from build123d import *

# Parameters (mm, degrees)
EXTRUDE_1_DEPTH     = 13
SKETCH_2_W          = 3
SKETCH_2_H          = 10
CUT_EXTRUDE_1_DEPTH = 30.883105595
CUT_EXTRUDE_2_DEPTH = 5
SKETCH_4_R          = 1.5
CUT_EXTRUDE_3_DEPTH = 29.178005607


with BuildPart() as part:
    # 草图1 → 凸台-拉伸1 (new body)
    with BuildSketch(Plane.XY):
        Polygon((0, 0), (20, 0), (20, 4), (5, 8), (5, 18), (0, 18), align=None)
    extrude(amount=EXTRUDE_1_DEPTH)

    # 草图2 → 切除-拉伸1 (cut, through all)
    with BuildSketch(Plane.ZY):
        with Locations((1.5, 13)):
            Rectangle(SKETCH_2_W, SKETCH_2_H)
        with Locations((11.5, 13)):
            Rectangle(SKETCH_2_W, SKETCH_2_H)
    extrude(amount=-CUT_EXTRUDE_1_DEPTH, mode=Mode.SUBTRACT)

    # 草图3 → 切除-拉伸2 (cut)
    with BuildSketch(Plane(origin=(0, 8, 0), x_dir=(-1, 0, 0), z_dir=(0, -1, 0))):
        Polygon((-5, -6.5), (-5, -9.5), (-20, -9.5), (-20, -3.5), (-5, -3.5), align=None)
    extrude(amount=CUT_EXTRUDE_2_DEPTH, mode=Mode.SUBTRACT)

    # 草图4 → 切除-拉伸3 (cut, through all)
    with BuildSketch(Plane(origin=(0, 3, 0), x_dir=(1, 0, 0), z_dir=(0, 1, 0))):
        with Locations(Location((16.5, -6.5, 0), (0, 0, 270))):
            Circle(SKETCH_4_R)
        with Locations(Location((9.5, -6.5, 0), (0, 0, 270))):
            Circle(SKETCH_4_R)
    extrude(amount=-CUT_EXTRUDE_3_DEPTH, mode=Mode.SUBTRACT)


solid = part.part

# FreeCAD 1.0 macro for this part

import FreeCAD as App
import Part
import Sketcher
from FreeCAD import Vector

doc = App.newDocument("Part")
params = doc.addObject("Spreadsheet::Sheet", "Params")
for row, (alias, value) in enumerate([
    ("sketch1_width", "20 mm"),
    ("sketch1_width2", "5 mm"),
    ("sketch1_height", "4 mm"),
    ("sketch1_height2", "10 mm"),
    ("sketch1_height3", "18 mm"),
    ("pad1_length", "13 mm"),
    ("sketch2_width", "10 mm"),
    ("sketch2_height", "3 mm"),
    ("sketch3_width", "15 mm"),
    ("sketch3_height", "6 mm"),
    ("pocket2_length", "5 mm"),
    ("sketch4_diameter", "3 mm"),
], start=1):
    params.set(f"A{row}", alias)
    params.set(f"B{row}", "=" + value)
    params.setAlias(f"B{row}", alias)

body = doc.addObject("PartDesign::Body", "Body")

sketch1 = body.newObject("Sketcher::SketchObject", "Sketch")
sketch1.AttachmentSupport = (doc.getObject("XY_Plane"), [""])
sketch1.MapMode = "FlatFace"
sketch1.addGeometry(Part.LineSegment(Vector(0, 0, 0), Vector(20, 0, 0)), False)
sketch1.addGeometry(Part.LineSegment(Vector(20, 0, 0), Vector(20, 4, 0)), False)
sketch1.addGeometry(Part.LineSegment(Vector(20, 4, 0), Vector(5, 8, 0)), False)
sketch1.addGeometry(Part.LineSegment(Vector(5, 8, 0), Vector(5, 18, 0)), False)
sketch1.addGeometry(Part.LineSegment(Vector(5, 18, 0), Vector(0, 18, 0)), False)
sketch1.addGeometry(Part.LineSegment(Vector(0, 18, 0), Vector(0, 0, 0)), False)
sketch1.addConstraint(Sketcher.Constraint("Coincident", 0, 2, 1, 1))
sketch1.addConstraint(Sketcher.Constraint("Coincident", 1, 2, 2, 1))
sketch1.addConstraint(Sketcher.Constraint("Coincident", 2, 2, 3, 1))
sketch1.addConstraint(Sketcher.Constraint("Coincident", 3, 2, 4, 1))
sketch1.addConstraint(Sketcher.Constraint("Coincident", 4, 2, 5, 1))
sketch1.addConstraint(Sketcher.Constraint("Coincident", 5, 2, 0, 1))
sketch1.addConstraint(Sketcher.Constraint("Horizontal", 0))
sketch1.addConstraint(Sketcher.Constraint("Vertical", 1))
sketch1.addConstraint(Sketcher.Constraint("Vertical", 3))
sketch1.addConstraint(Sketcher.Constraint("Horizontal", 4))
sketch1.addConstraint(Sketcher.Constraint("Vertical", 5))
sketch1.addConstraint(Sketcher.Constraint("Coincident", 5, 2, -1, 1))
sketch1.addConstraint(Sketcher.Constraint("DistanceX", 0, 1, 0, 2, 20.0))
sketch1.addConstraint(Sketcher.Constraint("DistanceX", 4, 2, 4, 1, 5.0))
sketch1.addConstraint(Sketcher.Constraint("DistanceY", 1, 1, 1, 2, 4.0))
sketch1.addConstraint(Sketcher.Constraint("DistanceY", 3, 1, 3, 2, 10.0))
sketch1.addConstraint(Sketcher.Constraint("DistanceY", 5, 2, 5, 1, 18.0))
sketch1.setExpression("Constraints[12]", "Params.sketch1_width")
sketch1.setExpression("Constraints[13]", "Params.sketch1_width2")
sketch1.setExpression("Constraints[14]", "Params.sketch1_height")
sketch1.setExpression("Constraints[15]", "Params.sketch1_height2")
sketch1.setExpression("Constraints[16]", "Params.sketch1_height3")
pad1 = body.newObject("PartDesign::Pad", "Pad")
pad1.Profile = sketch1
pad1.setExpression("Length", "Params.pad1_length")

sketch2 = body.newObject("Sketcher::SketchObject", "Sketch001")
sketch2.AttachmentSupport = (doc.getObject("YZ_Plane"), [""])
sketch2.MapMode = "FlatFace"
sketch2.addGeometry(Part.LineSegment(Vector(18, 0, 0), Vector(8, 0, 0)), False)
sketch2.addGeometry(Part.LineSegment(Vector(8, 0, 0), Vector(8, 3, 0)), False)
sketch2.addGeometry(Part.LineSegment(Vector(8, 3, 0), Vector(18, 3, 0)), False)
sketch2.addGeometry(Part.LineSegment(Vector(18, 3, 0), Vector(18, 0, 0)), False)
sketch2.addGeometry(Part.LineSegment(Vector(18, 10, 0), Vector(8, 10, 0)), False)
sketch2.addGeometry(Part.LineSegment(Vector(8, 10, 0), Vector(8, 13, 0)), False)
sketch2.addGeometry(Part.LineSegment(Vector(8, 13, 0), Vector(18, 13, 0)), False)
sketch2.addGeometry(Part.LineSegment(Vector(18, 13, 0), Vector(18, 10, 0)), False)
sketch2.addConstraint(Sketcher.Constraint("Coincident", 0, 2, 1, 1))
sketch2.addConstraint(Sketcher.Constraint("Coincident", 1, 2, 2, 1))
sketch2.addConstraint(Sketcher.Constraint("Coincident", 2, 2, 3, 1))
sketch2.addConstraint(Sketcher.Constraint("Coincident", 3, 2, 0, 1))
sketch2.addConstraint(Sketcher.Constraint("Coincident", 4, 2, 5, 1))
sketch2.addConstraint(Sketcher.Constraint("Coincident", 5, 2, 6, 1))
sketch2.addConstraint(Sketcher.Constraint("Coincident", 6, 2, 7, 1))
sketch2.addConstraint(Sketcher.Constraint("Coincident", 7, 2, 4, 1))
sketch2.addConstraint(Sketcher.Constraint("Horizontal", 0))
sketch2.addConstraint(Sketcher.Constraint("Vertical", 1))
sketch2.addConstraint(Sketcher.Constraint("Horizontal", 2))
sketch2.addConstraint(Sketcher.Constraint("Vertical", 3))
sketch2.addConstraint(Sketcher.Constraint("Horizontal", 4))
sketch2.addConstraint(Sketcher.Constraint("Vertical", 5))
sketch2.addConstraint(Sketcher.Constraint("Horizontal", 6))
sketch2.addConstraint(Sketcher.Constraint("Vertical", 7))
sketch2.addConstraint(Sketcher.Constraint("PointOnObject", 0, 2, -1))
sketch2.addConstraint(Sketcher.Constraint("Vertical", 1, 2, 4, 2))
sketch2.addConstraint(Sketcher.Constraint("Vertical", 3, 2, 6, 2))
sketch2.addConstraint(Sketcher.Constraint("Equal", 3, 5))
sketch2.addConstraint(Sketcher.Constraint("DistanceX", 0, 2, 0, 1, 10.0))
sketch2.addConstraint(Sketcher.Constraint("DistanceY", 1, 1, 1, 2, 3.0))
sketch2.addConstraint(Sketcher.Constraint("DistanceX", -1, 1, 0, 2, 8.0))
sketch2.addConstraint(Sketcher.Constraint("DistanceY", -1, 1, 4, 2, 10.0))
sketch2.setExpression("Constraints[20]", "Params.sketch2_width")
sketch2.setExpression("Constraints[21]", "Params.sketch2_height")
pocket1 = body.newObject("PartDesign::Pocket", "Pocket")
pocket1.Profile = sketch2
pocket1.Type = "ThroughAll"
pocket1.Reversed = True

sketch3 = body.newObject("Sketcher::SketchObject", "Sketch002")
sketch3.AttachmentSupport = (doc.getObject("XZ_Plane"), [""])
sketch3.MapMode = "FlatFace"
sketch3.AttachmentOffset = App.Placement(Vector(0, 0, -8), App.Rotation())
sketch3.addGeometry(Part.LineSegment(Vector(5, 10, 0), Vector(5, 4, 0)), False)
sketch3.addGeometry(Part.LineSegment(Vector(5, 4, 0), Vector(20, 4, 0)), False)
sketch3.addGeometry(Part.LineSegment(Vector(20, 4, 0), Vector(20, 10, 0)), False)
sketch3.addGeometry(Part.LineSegment(Vector(20, 10, 0), Vector(5, 10, 0)), False)
sketch3.addConstraint(Sketcher.Constraint("Coincident", 0, 2, 1, 1))
sketch3.addConstraint(Sketcher.Constraint("Coincident", 1, 2, 2, 1))
sketch3.addConstraint(Sketcher.Constraint("Coincident", 2, 2, 3, 1))
sketch3.addConstraint(Sketcher.Constraint("Coincident", 3, 2, 0, 1))
sketch3.addConstraint(Sketcher.Constraint("Vertical", 0))
sketch3.addConstraint(Sketcher.Constraint("Horizontal", 1))
sketch3.addConstraint(Sketcher.Constraint("Vertical", 2))
sketch3.addConstraint(Sketcher.Constraint("Horizontal", 3))
sketch3.addConstraint(Sketcher.Constraint("DistanceX", 1, 1, 1, 2, 15.0))
sketch3.addConstraint(Sketcher.Constraint("DistanceY", 0, 2, 0, 1, 6.0))
sketch3.addConstraint(Sketcher.Constraint("DistanceX", -1, 1, 0, 2, 5.0))
sketch3.addConstraint(Sketcher.Constraint("DistanceY", -1, 1, 0, 2, 3.5))
sketch3.setExpression("Constraints[8]", "Params.sketch3_width")
sketch3.setExpression("Constraints[9]", "Params.sketch3_height")
pocket2 = body.newObject("PartDesign::Pocket", "Pocket001")
pocket2.Profile = sketch3
pocket2.setExpression("Length", "Params.pocket2_length")
pocket2.Reversed = True

sketch4 = body.newObject("Sketcher::SketchObject", "Sketch003")
sketch4.AttachmentSupport = (doc.getObject("XZ_Plane"), [""])
sketch4.MapMode = "FlatFace"
sketch4.AttachmentOffset = App.Placement(Vector(0, 0, -3), App.Rotation())
sketch4.addGeometry(Part.Circle(Vector(16.5, 6.5, 0), Vector(0, 0, 1), 1.5), False)
sketch4.addGeometry(Part.Circle(Vector(9.5, 6.5, 0), Vector(0, 0, 1), 1.5), False)
sketch4.addConstraint(Sketcher.Constraint("Equal", 0, 1))
sketch4.addConstraint(Sketcher.Constraint("Horizontal", 0, 3, 1, 3))
sketch4.addConstraint(Sketcher.Constraint("Diameter", 0, 3.0))
sketch4.addConstraint(Sketcher.Constraint("DistanceX", 1, 3, 0, 3, 7.0))
sketch4.addConstraint(Sketcher.Constraint("DistanceX", -1, 1, 0, 3, 16.5))
sketch4.addConstraint(Sketcher.Constraint("DistanceY", -1, 1, 0, 3, 6.5))
sketch4.setExpression("Constraints[2]", "Params.sketch4_diameter")
pocket3 = body.newObject("PartDesign::Pocket", "Pocket002")
pocket3.Profile = sketch4
pocket3.Type = "ThroughAll"
pocket3.Reversed = True

doc.recompute()
